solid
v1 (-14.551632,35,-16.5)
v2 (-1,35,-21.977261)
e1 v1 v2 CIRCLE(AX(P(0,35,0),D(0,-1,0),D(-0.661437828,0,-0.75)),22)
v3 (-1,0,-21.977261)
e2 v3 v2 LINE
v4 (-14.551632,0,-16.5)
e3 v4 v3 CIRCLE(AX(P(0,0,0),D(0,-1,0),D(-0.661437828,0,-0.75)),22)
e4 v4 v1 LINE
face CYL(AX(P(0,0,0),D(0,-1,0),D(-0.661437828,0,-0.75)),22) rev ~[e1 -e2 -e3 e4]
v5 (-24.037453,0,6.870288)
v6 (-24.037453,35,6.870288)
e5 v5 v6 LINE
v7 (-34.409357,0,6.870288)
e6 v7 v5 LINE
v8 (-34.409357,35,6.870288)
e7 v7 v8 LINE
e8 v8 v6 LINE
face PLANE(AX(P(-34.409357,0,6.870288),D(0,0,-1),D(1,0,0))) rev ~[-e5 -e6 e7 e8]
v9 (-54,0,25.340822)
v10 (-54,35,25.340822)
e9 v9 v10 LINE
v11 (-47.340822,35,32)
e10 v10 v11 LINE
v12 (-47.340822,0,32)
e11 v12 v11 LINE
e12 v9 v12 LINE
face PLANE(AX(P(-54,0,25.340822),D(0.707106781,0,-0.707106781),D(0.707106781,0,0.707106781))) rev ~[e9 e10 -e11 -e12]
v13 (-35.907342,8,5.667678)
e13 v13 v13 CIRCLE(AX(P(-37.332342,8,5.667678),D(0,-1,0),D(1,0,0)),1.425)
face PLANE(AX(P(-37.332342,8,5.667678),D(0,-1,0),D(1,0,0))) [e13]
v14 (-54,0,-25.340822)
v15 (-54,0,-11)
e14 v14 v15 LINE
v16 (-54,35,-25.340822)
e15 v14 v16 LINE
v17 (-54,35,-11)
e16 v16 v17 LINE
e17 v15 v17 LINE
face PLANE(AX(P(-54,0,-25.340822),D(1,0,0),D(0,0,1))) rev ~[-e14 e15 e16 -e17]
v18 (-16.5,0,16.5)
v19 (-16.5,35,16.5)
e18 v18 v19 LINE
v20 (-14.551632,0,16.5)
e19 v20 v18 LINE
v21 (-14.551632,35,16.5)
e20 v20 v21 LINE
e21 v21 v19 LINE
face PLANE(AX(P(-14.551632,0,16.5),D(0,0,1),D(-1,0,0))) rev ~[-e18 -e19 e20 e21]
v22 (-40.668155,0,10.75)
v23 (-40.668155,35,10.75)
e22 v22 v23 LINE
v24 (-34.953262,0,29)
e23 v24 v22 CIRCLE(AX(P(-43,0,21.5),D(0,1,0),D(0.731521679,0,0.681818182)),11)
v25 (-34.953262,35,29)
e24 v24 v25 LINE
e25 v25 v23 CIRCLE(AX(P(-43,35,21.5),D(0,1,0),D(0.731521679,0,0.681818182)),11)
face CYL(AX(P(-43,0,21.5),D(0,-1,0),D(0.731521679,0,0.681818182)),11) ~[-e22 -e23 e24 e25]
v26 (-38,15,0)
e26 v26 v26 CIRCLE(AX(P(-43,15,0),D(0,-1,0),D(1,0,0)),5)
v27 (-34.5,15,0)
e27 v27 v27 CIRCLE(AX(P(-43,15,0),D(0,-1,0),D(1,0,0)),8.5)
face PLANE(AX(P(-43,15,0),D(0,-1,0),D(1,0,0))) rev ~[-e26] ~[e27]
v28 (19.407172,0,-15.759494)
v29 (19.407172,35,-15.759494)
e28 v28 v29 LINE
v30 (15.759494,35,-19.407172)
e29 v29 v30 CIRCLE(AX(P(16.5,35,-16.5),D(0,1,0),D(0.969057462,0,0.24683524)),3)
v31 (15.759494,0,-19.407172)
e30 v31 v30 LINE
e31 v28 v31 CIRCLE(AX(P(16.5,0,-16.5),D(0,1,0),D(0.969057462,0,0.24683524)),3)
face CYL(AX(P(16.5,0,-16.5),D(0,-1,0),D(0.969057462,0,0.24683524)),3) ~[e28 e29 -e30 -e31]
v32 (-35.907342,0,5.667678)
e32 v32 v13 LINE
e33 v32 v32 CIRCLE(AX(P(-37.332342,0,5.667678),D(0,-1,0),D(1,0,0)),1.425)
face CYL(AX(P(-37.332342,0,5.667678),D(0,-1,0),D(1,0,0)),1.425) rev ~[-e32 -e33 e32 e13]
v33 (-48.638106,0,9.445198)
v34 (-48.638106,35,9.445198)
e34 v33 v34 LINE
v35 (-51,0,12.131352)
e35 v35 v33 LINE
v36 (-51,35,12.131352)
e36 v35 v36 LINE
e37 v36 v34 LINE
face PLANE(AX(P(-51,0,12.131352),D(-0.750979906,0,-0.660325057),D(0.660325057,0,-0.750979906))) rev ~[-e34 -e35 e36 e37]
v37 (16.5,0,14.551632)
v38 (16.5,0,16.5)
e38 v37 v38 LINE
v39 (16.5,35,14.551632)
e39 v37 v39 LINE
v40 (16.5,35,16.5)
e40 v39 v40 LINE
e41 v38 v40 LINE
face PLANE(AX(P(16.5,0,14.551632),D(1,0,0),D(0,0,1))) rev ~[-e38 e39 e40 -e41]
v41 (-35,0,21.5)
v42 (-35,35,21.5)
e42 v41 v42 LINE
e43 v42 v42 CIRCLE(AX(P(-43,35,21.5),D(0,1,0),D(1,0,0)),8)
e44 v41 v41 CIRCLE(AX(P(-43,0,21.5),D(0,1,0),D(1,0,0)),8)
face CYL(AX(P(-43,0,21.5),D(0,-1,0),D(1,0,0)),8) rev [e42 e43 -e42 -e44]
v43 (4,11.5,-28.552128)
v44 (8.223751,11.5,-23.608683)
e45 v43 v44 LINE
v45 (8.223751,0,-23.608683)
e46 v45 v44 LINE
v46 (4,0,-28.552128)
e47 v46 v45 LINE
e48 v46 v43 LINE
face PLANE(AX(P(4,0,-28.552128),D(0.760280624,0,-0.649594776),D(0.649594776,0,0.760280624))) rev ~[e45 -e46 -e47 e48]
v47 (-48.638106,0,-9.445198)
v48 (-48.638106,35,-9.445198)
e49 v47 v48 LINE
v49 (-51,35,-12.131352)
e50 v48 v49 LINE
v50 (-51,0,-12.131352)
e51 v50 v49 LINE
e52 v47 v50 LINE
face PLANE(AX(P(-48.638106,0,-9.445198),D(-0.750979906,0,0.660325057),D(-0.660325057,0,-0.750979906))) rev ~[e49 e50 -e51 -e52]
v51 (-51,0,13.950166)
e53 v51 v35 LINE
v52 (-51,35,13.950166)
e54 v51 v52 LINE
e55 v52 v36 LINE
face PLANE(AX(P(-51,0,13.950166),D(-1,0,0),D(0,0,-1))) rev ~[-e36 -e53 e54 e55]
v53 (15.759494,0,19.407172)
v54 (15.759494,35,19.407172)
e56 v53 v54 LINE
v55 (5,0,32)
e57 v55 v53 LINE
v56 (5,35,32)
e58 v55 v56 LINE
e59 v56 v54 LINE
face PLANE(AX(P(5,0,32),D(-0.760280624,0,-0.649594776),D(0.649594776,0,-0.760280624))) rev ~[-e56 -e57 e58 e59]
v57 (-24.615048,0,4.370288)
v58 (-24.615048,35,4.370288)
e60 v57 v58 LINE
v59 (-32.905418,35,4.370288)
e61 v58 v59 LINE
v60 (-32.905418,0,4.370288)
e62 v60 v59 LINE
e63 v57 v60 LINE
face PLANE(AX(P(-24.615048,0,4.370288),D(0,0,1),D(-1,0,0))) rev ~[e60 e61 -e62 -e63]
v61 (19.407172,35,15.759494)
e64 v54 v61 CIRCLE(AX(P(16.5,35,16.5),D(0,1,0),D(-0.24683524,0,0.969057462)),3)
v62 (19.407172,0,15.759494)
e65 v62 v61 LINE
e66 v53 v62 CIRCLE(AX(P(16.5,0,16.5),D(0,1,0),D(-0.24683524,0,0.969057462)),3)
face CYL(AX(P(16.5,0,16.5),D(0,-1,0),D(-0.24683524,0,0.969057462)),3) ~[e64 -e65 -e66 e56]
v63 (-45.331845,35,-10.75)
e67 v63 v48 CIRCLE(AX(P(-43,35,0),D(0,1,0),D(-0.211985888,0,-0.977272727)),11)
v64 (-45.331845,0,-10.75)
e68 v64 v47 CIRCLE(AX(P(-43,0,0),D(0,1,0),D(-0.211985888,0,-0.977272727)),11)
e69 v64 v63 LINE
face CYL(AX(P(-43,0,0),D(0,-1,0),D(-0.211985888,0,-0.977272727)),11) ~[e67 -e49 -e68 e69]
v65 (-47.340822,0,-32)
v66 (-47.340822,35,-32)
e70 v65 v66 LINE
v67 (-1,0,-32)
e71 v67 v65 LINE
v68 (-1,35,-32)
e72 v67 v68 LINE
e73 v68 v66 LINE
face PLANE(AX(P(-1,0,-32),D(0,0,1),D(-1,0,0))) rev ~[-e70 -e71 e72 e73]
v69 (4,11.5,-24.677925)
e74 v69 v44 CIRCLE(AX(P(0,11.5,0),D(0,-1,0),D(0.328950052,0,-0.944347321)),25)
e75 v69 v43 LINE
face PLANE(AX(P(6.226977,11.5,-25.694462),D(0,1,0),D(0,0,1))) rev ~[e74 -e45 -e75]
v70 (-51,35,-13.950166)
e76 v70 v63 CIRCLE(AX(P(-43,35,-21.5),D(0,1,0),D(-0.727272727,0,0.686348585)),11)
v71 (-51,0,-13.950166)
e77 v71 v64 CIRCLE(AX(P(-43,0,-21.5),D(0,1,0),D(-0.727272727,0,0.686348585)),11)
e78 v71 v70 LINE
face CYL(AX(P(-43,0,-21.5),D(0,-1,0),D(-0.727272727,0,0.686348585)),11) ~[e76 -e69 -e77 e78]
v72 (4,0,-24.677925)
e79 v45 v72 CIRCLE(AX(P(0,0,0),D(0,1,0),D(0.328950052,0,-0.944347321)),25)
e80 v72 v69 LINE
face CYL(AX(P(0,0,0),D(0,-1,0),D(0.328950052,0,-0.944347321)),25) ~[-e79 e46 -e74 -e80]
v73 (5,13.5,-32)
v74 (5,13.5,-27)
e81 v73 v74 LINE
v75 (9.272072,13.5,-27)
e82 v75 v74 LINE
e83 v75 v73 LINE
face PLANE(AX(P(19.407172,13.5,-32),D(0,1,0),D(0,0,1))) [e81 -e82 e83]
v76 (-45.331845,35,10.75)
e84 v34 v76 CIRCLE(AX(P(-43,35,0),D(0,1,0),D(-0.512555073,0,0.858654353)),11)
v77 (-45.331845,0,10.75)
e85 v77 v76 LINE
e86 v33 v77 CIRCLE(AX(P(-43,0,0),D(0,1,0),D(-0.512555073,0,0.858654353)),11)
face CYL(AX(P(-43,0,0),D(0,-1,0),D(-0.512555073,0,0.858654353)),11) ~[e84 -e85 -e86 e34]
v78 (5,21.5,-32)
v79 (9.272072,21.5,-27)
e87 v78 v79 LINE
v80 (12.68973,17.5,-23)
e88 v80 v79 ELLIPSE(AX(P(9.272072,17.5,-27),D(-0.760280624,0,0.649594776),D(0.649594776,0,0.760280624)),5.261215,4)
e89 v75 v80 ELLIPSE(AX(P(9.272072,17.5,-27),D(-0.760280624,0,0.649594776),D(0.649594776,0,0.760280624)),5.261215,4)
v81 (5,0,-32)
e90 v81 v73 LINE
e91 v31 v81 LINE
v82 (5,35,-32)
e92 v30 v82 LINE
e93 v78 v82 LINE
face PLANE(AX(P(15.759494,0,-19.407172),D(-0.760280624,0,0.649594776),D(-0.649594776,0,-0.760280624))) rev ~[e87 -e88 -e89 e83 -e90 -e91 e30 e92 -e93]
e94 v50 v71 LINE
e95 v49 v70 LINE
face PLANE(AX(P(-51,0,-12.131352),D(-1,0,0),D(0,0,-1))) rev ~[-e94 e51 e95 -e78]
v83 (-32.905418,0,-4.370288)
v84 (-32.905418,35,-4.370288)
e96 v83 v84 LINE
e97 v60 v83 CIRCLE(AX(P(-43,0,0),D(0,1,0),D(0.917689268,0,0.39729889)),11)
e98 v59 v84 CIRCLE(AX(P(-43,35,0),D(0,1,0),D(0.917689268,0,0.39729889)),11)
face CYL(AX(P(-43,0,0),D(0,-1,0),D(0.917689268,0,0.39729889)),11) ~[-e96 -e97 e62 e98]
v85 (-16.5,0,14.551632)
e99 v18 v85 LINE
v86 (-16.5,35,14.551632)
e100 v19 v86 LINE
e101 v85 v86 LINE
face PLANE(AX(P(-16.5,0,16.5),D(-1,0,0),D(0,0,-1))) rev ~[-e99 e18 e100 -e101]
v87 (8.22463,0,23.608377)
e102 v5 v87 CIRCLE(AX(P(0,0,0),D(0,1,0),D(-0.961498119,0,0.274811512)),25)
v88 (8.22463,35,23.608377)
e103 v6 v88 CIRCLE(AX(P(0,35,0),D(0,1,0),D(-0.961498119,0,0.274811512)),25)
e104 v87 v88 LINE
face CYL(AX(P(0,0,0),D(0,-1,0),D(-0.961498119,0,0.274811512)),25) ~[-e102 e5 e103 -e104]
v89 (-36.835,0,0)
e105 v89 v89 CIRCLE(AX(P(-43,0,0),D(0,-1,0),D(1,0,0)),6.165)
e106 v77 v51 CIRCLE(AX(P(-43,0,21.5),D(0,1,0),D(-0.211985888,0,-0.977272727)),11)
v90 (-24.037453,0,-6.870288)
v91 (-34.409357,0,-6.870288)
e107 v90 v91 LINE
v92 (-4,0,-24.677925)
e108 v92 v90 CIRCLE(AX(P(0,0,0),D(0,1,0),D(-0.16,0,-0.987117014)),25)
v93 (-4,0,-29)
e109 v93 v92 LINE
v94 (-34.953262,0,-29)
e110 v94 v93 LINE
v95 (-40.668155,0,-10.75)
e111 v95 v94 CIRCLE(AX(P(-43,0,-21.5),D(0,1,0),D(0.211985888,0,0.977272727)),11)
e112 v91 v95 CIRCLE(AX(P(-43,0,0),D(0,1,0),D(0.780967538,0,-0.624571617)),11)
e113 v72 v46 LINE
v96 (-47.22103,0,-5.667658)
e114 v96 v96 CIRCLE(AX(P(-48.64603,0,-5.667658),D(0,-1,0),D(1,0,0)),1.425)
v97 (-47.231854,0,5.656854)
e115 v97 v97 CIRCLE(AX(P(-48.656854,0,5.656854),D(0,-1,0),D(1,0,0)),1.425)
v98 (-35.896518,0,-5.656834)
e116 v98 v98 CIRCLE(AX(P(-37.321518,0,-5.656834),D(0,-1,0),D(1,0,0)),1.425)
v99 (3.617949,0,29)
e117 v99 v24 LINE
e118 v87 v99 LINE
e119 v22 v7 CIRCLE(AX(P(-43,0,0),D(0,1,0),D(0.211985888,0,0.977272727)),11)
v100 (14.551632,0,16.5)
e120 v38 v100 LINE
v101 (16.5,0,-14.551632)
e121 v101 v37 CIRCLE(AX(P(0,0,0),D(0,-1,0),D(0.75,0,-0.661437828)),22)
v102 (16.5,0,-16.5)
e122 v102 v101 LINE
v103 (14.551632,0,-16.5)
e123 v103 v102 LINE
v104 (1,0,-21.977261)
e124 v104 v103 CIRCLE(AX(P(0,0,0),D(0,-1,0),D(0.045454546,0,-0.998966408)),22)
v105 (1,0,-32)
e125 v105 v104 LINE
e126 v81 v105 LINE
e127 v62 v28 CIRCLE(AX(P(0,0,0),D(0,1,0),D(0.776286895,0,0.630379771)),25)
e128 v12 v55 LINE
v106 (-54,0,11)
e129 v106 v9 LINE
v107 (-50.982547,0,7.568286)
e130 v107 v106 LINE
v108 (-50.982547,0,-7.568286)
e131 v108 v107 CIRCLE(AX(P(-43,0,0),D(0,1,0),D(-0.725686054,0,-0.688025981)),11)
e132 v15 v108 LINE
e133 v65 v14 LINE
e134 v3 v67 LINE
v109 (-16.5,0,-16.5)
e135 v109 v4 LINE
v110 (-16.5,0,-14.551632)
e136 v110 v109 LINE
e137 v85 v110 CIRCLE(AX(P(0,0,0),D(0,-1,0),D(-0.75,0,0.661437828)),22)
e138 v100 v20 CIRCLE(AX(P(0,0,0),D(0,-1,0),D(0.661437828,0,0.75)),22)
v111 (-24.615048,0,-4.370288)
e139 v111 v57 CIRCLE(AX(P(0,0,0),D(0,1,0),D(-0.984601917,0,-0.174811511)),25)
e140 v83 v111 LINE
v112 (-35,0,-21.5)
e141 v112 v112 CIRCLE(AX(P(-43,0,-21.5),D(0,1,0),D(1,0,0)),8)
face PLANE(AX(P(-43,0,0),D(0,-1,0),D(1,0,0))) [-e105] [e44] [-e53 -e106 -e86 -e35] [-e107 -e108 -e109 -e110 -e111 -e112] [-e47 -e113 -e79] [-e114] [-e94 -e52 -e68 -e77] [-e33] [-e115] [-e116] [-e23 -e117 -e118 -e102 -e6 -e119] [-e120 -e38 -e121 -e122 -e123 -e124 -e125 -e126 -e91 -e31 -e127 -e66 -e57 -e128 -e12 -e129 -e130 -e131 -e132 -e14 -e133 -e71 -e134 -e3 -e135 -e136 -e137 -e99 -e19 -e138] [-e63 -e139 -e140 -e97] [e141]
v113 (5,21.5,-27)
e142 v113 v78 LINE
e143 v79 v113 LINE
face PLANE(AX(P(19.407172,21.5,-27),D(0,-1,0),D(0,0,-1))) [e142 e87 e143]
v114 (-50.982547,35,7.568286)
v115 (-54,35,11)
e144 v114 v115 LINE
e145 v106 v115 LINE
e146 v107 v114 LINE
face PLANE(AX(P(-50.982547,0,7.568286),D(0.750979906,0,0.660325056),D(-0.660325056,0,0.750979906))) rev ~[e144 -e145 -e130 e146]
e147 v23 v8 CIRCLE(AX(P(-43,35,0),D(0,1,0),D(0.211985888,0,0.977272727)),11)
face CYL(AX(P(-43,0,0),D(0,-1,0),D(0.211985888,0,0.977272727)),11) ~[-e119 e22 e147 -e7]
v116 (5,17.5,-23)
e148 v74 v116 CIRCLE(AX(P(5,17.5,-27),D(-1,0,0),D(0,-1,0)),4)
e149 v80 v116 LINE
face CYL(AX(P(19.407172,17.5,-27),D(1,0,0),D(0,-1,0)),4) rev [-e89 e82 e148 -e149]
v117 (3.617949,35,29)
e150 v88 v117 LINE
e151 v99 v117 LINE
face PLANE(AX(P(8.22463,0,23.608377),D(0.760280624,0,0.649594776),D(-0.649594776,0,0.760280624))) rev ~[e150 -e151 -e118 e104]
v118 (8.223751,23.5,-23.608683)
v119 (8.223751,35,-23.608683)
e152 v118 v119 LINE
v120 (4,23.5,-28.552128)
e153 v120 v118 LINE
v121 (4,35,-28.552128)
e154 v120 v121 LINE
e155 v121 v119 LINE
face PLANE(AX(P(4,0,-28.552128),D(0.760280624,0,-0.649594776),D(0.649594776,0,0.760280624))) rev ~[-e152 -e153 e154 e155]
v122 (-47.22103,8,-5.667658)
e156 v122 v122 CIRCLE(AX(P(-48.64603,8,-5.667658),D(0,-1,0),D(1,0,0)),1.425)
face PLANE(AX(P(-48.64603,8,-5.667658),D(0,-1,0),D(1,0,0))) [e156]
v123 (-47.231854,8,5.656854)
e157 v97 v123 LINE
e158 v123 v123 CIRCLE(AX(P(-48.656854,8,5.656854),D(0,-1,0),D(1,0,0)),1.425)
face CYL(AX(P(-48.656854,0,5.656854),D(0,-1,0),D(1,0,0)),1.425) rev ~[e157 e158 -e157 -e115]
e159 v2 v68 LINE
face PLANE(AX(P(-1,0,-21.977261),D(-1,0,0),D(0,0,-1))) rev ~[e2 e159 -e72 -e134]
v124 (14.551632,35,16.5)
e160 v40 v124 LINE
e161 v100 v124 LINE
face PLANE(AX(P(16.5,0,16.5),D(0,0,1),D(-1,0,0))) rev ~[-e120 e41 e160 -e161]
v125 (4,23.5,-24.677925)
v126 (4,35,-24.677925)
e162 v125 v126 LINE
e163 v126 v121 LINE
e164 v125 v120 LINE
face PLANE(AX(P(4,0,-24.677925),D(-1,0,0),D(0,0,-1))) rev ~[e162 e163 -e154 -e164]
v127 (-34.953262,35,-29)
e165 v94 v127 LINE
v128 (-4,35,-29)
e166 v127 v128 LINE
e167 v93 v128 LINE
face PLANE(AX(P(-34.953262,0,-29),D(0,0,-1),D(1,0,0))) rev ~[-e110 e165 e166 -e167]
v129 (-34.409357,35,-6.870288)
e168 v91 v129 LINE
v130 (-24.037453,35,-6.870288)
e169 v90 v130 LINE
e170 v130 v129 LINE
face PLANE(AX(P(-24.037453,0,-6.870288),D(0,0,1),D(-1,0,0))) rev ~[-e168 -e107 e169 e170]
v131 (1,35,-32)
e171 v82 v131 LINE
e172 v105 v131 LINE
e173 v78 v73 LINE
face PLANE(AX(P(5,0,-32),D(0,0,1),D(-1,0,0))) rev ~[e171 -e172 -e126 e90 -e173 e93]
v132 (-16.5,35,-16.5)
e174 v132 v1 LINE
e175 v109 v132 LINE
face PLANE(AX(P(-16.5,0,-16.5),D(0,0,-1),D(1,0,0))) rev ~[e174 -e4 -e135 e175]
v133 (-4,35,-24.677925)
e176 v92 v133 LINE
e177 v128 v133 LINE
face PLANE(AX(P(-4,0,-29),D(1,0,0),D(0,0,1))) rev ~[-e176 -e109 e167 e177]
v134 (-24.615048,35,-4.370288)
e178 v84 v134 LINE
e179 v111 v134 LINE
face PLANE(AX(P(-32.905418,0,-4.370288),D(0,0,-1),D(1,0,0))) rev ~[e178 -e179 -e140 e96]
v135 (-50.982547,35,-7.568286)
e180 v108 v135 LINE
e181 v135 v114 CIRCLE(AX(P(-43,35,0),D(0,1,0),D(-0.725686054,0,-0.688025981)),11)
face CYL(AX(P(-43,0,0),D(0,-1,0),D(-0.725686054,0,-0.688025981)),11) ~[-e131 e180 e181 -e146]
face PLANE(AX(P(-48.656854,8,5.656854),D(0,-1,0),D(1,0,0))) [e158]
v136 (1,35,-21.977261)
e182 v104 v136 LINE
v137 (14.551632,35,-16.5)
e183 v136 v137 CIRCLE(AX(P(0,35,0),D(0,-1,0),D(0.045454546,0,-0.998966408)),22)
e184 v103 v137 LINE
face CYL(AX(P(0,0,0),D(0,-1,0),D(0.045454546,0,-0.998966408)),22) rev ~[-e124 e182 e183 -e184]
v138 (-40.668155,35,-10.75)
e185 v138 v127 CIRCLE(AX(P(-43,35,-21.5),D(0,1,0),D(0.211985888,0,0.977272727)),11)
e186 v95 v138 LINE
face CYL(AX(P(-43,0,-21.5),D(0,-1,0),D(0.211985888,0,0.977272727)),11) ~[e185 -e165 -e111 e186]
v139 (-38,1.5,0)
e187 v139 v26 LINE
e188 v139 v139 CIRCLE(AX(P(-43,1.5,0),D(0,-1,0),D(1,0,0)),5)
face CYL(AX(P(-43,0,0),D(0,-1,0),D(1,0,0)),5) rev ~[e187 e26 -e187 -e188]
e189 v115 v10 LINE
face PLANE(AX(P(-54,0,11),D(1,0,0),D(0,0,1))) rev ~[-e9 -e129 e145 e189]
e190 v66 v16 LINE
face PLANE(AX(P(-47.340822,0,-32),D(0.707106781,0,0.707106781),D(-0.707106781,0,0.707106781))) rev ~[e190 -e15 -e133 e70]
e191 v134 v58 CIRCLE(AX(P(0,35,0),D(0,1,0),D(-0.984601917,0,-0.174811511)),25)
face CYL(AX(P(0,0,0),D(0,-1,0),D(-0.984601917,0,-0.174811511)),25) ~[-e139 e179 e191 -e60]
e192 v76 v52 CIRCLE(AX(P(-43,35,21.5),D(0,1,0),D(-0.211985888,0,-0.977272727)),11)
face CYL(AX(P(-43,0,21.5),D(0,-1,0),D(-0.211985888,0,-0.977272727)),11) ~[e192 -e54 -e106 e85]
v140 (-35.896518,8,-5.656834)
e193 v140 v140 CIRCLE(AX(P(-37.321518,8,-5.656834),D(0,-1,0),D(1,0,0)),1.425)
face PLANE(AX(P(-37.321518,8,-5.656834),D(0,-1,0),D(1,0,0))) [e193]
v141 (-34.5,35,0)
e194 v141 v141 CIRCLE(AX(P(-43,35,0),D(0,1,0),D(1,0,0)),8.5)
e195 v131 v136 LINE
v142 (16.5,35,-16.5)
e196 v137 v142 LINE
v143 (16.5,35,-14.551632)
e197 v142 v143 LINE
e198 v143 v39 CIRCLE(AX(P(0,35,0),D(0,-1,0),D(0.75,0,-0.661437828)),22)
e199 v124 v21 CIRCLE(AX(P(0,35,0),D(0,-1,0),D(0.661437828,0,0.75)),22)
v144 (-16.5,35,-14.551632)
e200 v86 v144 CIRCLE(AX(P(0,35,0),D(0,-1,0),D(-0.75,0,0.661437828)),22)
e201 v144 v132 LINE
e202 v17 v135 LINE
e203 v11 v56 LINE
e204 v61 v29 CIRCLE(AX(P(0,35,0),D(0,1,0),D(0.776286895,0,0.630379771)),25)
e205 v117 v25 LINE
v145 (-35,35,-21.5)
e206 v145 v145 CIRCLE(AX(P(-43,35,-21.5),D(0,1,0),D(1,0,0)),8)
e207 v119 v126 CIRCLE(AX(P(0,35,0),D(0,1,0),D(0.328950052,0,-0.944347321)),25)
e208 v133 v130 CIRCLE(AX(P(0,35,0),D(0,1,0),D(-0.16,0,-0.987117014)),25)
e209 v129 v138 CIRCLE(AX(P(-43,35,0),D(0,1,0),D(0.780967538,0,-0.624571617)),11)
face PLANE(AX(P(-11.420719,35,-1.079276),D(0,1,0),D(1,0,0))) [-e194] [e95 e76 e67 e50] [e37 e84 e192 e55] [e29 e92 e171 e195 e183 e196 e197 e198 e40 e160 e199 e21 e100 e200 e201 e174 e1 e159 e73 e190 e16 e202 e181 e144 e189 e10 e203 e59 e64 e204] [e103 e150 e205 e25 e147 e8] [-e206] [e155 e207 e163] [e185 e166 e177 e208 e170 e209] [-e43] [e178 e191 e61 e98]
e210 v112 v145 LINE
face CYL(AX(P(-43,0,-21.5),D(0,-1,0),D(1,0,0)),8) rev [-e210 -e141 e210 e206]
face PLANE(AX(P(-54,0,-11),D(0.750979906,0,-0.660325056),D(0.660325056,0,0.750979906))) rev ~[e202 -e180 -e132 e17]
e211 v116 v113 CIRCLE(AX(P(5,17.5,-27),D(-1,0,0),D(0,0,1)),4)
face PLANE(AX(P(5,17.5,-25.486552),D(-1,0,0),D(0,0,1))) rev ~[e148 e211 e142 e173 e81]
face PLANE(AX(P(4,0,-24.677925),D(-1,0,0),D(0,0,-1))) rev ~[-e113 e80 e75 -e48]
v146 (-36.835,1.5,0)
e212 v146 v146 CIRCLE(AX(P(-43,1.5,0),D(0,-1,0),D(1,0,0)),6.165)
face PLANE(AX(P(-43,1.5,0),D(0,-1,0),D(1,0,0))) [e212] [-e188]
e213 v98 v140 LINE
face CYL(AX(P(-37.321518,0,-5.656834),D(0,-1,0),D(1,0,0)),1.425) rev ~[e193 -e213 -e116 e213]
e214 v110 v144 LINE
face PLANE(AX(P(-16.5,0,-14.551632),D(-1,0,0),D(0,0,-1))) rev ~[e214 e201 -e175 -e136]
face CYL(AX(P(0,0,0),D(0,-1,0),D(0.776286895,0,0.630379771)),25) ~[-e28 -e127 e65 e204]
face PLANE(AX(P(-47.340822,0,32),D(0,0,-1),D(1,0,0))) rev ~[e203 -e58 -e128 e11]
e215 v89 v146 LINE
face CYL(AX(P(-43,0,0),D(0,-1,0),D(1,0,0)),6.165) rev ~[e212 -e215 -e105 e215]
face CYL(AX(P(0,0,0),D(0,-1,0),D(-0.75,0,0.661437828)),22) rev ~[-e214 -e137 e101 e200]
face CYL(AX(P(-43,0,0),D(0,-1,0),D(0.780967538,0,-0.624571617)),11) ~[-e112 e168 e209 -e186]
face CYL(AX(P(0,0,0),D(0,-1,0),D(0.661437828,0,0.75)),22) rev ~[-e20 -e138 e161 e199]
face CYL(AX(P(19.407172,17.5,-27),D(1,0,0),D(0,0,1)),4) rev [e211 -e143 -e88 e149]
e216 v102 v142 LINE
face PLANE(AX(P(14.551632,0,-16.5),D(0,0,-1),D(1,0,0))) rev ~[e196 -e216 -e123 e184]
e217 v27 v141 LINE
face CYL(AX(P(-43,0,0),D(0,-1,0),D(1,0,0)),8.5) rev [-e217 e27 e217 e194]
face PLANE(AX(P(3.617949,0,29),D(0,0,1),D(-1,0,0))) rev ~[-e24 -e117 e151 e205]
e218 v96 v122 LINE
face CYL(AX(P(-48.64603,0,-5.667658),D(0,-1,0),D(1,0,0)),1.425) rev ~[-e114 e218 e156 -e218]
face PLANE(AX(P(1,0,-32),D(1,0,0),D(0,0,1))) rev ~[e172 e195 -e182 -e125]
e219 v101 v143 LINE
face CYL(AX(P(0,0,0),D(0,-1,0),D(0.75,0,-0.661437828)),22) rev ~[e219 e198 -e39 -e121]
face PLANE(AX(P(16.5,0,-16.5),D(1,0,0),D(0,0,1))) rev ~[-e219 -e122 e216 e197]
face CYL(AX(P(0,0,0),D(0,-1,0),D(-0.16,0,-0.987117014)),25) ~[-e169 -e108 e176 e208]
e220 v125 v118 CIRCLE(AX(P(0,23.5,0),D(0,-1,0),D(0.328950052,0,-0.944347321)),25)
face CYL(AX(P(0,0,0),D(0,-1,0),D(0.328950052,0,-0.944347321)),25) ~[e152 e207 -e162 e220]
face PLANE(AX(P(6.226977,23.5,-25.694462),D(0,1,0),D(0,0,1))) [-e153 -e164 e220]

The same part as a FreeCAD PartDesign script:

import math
import FreeCAD as App
import Part
import Sketcher
Q = App.Units.Quantity


def add_polygon(sketch, points):
    """Adds a closed chain of lines whose ends are joined by coincident constraints."""
    first, n = sketch.GeometryCount, len(points)
    for a, b in zip(points, points[1:] + points[:1]):
        sketch.addGeometry(Part.LineSegment(App.Vector(*a, 0), App.Vector(*b, 0)), False)
    for i in range(n):
        sketch.addConstraint(Sketcher.Constraint("Coincident", first + i, 2, first + (i + 1) % n, 1))

doc = App.newDocument("Part")
body = doc.addObject("PartDesign::Body", "Body")

# Sketch on XZ plane
sketch1 = body.newObject("Sketcher::SketchObject", "Sketch")
sketch1.AttachmentSupport = (doc.getObject("XZ_Plane"), [""])
sketch1.MapMode = "FlatFace"
sketch1.addGeometry(Part.ArcOfCircle(Part.Circle(App.Vector(-43, 0, 0), App.Vector(0, 0, 1), 11), math.radians(136.525949), math.radians(223.474051)), False)
sketch1.addGeometry(Part.LineSegment(App.Vector(-50.982547, 7.568286, 0), App.Vector(-54, 11, 0)), False)
sketch1.addGeometry(Part.LineSegment(App.Vector(-54, 11, 0), App.Vector(-54, 25.340822, 0)), False)
sketch1.addGeometry(Part.LineSegment(App.Vector(-54, 25.340822, 0), App.Vector(-47.340822, 32, 0)), False)
sketch1.addGeometry(Part.LineSegment(App.Vector(-47.340822, 32, 0), App.Vector(5, 32, 0)), False)
sketch1.addGeometry(Part.LineSegment(App.Vector(5, 32, 0), App.Vector(15.759494, 19.407172, 0)), False)
sketch1.addGeometry(Part.ArcOfCircle(Part.Circle(App.Vector(16.5, 16.5, 0), App.Vector(0, 0, 1), 3), math.radians(-14.290317), math.radians(104.290317)), False)
sketch1.addGeometry(Part.ArcOfCircle(Part.Circle(App.Vector(0, 0, 0), App.Vector(0, 0, 1), 25), math.radians(-39.078147), math.radians(39.078147)), False)
sketch1.addGeometry(Part.ArcOfCircle(Part.Circle(App.Vector(16.5, -16.5, 0), App.Vector(0, 0, 1), 3), math.radians(-104.290317), math.radians(14.290317)), False)
sketch1.addGeometry(Part.LineSegment(App.Vector(15.759494, -19.407172, 0), App.Vector(5, -32, 0)), False)
sketch1.addGeometry(Part.LineSegment(App.Vector(5, -32, 0), App.Vector(1, -32, 0)), False)
sketch1.addGeometry(Part.LineSegment(App.Vector(1, -32, 0), App.Vector(1, -21.977261, 0)), False)
sketch1.addGeometry(Part.ArcOfCircle(Part.Circle(App.Vector(0, 0, 0), App.Vector(0, 0, 1), 22), math.radians(-87.394749), math.radians(-48.590378)), False)
sketch1.addGeometry(Part.LineSegment(App.Vector(14.551632, -16.5, 0), App.Vector(16.5, -16.5, 0)), False)
sketch1.addGeometry(Part.LineSegment(App.Vector(16.5, -16.5, 0), App.Vector(16.5, -14.551632, 0)), False)
sketch1.addGeometry(Part.ArcOfCircle(Part.Circle(App.Vector(0, 0, 0), App.Vector(0, 0, 1), 22), math.radians(-41.409622), math.radians(41.409622)), False)
sketch1.addGeometry(Part.LineSegment(App.Vector(16.5, 14.551632, 0), App.Vector(16.5, 16.5, 0)), False)
sketch1.addGeometry(Part.LineSegment(App.Vector(16.5, 16.5, 0), App.Vector(14.551632, 16.5, 0)), False)
sketch1.addGeometry(Part.ArcOfCircle(Part.Circle(App.Vector(0, 0, 0), App.Vector(0, 0, 1), 22), math.radians(48.590378), math.radians(131.409622)), False)
sketch1.addGeometry(Part.LineSegment(App.Vector(-14.551632, 16.5, 0), App.Vector(-16.5, 16.5, 0)), False)
sketch1.addGeometry(Part.LineSegment(App.Vector(-16.5, 16.5, 0), App.Vector(-16.5, 14.551632, 0)), False)
sketch1.addGeometry(Part.ArcOfCircle(Part.Circle(App.Vector(0, 0, 0), App.Vector(0, 0, 1), 22), math.radians(138.590378), math.radians(221.409622)), False)
sketch1.addGeometry(Part.LineSegment(App.Vector(-16.5, -14.551632, 0), App.Vector(-16.5, -16.5, 0)), False)
sketch1.addGeometry(Part.LineSegment(App.Vector(-16.5, -16.5, 0), App.Vector(-14.551632, -16.5, 0)), False)
sketch1.addGeometry(Part.ArcOfCircle(Part.Circle(App.Vector(0, 0, 0), App.Vector(0, 0, 1), 22), math.radians(-131.409622), math.radians(-92.605251)), False)
sketch1.addGeometry(Part.LineSegment(App.Vector(-1, -21.977261, 0), App.Vector(-1, -32, 0)), False)
sketch1.addGeometry(Part.LineSegment(App.Vector(-1, -32, 0), App.Vector(-47.340822, -32, 0)), False)
sketch1.addGeometry(Part.LineSegment(App.Vector(-47.340822, -32, 0), App.Vector(-54, -25.340822, 0)), False)
sketch1.addGeometry(Part.LineSegment(App.Vector(-54, -25.340822, 0), App.Vector(-54, -11, 0)), False)
sketch1.addGeometry(Part.LineSegment(App.Vector(-54, -11, 0), App.Vector(-50.982547, -7.568286, 0)), False)
sketch1.addGeometry(Part.Circle(App.Vector(-43, 21.5, 0), App.Vector(0, 0, 1), 8), False)
sketch1.addGeometry(Part.LineSegment(App.Vector(-51, 12.131352, 0), App.Vector(-48.638106, 9.445198, 0)), False)
sketch1.addGeometry(Part.ArcOfCircle(Part.Circle(App.Vector(-43, 0, 0), App.Vector(0, 0, 1), 11), math.radians(102.238756), math.radians(120.834172)), False)
sketch1.addGeometry(Part.ArcOfCircle(Part.Circle(App.Vector(-43, 21.5, 0), App.Vector(0, 0, 1), 11), math.radians(-136.658242), math.radians(-102.238756)), False)
sketch1.addGeometry(Part.LineSegment(App.Vector(-51, 13.950166, 0), App.Vector(-51, 12.131352, 0)), False)
sketch1.addGeometry(Part.LineSegment(App.Vector(3.617949, 29, 0), App.Vector(-34.953262, 29, 0)), False)
sketch1.addGeometry(Part.ArcOfCircle(Part.Circle(App.Vector(-43, 21.5, 0), App.Vector(0, 0, 1), 11), math.radians(-77.761244), math.radians(42.985886)), False)
sketch1.addGeometry(Part.ArcOfCircle(Part.Circle(App.Vector(-43, 0, 0), App.Vector(0, 0, 1), 11), math.radians(38.650752), math.radians(77.761244)), False)
sketch1.addGeometry(Part.LineSegment(App.Vector(-34.409357, 6.870288, 0), App.Vector(-24.037453, 6.870288, 0)), False)
sketch1.addGeometry(Part.ArcOfCircle(Part.Circle(App.Vector(0, 0, 0), App.Vector(0, 0, 1), 25), math.radians(70.792807), math.radians(164.049218)), False)
sketch1.addGeometry(Part.LineSegment(App.Vector(8.22463, 23.608377, 0), App.Vector(3.617949, 29, 0)), False)
sketch1.addGeometry(Part.Circle(App.Vector(-43, 0, 0), App.Vector(0, 0, 1), 8.5), False)
sketch1.addGeometry(Part.ArcOfCircle(Part.Circle(App.Vector(-43, -21.5, 0), App.Vector(0, 0, 1), 11), math.radians(102.238756), math.radians(136.658242)), False)
sketch1.addGeometry(Part.ArcOfCircle(Part.Circle(App.Vector(-43, 0, 0), App.Vector(0, 0, 1), 11), math.radians(-120.834172), math.radians(-102.238756)), False)
sketch1.addGeometry(Part.LineSegment(App.Vector(-48.638106, -9.445198, 0), App.Vector(-51, -12.131352, 0)), False)
sketch1.addGeometry(Part.LineSegment(App.Vector(-51, -12.131352, 0), App.Vector(-51, -13.950166, 0)), False)
sketch1.addGeometry(Part.LineSegment(App.Vector(-24.615048, 4.370288, 0), App.Vector(-32.905418, 4.370288, 0)), False)
sketch1.addGeometry(Part.ArcOfCircle(Part.Circle(App.Vector(-43, 0, 0), App.Vector(0, 0, 1), 11), math.radians(-23.409427), math.radians(23.409427)), False)
sketch1.addGeometry(Part.LineSegment(App.Vector(-32.905418, -4.370288, 0), App.Vector(-24.615048, -4.370288, 0)), False)
sketch1.addGeometry(Part.ArcOfCircle(Part.Circle(App.Vector(0, 0, 0), App.Vector(0, 0, 1), 25), math.radians(169.932311), math.radians(190.067689)), False)
sketch1.addGeometry(Part.Circle(App.Vector(-43, -21.5, 0), App.Vector(0, 0, 1), 8), False)
sketch1.addGeometry(Part.LineSegment(App.Vector(-24.037453, -6.870288, 0), App.Vector(-34.409357, -6.870288, 0)), False)
sketch1.addGeometry(Part.ArcOfCircle(Part.Circle(App.Vector(-43, 0, 0), App.Vector(0, 0, 1), 11), math.radians(-77.761244), math.radians(-38.650752)), False)
sketch1.addGeometry(Part.ArcOfCircle(Part.Circle(App.Vector(-43, -21.5, 0), App.Vector(0, 0, 1), 11), math.radians(-42.985886), math.radians(77.761244)), False)
sketch1.addGeometry(Part.LineSegment(App.Vector(-34.953262, -29, 0), App.Vector(-4, -29, 0)), False)
sketch1.addGeometry(Part.LineSegment(App.Vector(-4, -29, 0), App.Vector(-4, -24.677925, 0)), False)
sketch1.addGeometry(Part.ArcOfCircle(Part.Circle(App.Vector(0, 0, 0), App.Vector(0, 0, 1), 25), math.radians(-164.049218), math.radians(-99.206896)), False)
sketch1.addGeometry(Part.LineSegment(App.Vector(4, -28.552128, 0), App.Vector(8.223751, -23.608683, 0)), False)
sketch1.addGeometry(Part.ArcOfCircle(Part.Circle(App.Vector(0, 0, 0), App.Vector(0, 0, 1), 25), math.radians(-80.793104), math.radians(-70.79494)), False)
sketch1.addGeometry(Part.LineSegment(App.Vector(4, -24.677925, 0), App.Vector(4, -28.552128, 0)), False)
sketch1.addConstraint(Sketcher.Constraint("Coincident", 0, 1, 1, 1))
sketch1.addConstraint(Sketcher.Constraint("Coincident", 1, 2, 2, 1))
sketch1.addConstraint(Sketcher.Constraint("Coincident", 2, 2, 3, 1))
sketch1.addConstraint(Sketcher.Constraint("Coincident", 3, 2, 4, 1))
sketch1.addConstraint(Sketcher.Constraint("Coincident", 4, 2, 5, 1))
sketch1.addConstraint(Sketcher.Constraint("Coincident", 5, 2, 6, 2))
sketch1.addConstraint(Sketcher.Constraint("Coincident", 6, 1, 7, 2))
sketch1.addConstraint(Sketcher.Constraint("Coincident", 7, 1, 8, 2))
sketch1.addConstraint(Sketcher.Constraint("Coincident", 8, 1, 9, 1))
sketch1.addConstraint(Sketcher.Constraint("Coincident", 9, 2, 10, 1))
sketch1.addConstraint(Sketcher.Constraint("Coincident", 10, 2, 11, 1))
sketch1.addConstraint(Sketcher.Constraint("Coincident", 11, 2, 12, 1))
sketch1.addConstraint(Sketcher.Constraint("Coincident", 12, 2, 13, 1))
sketch1.addConstraint(Sketcher.Constraint("Coincident", 13, 2, 14, 1))
sketch1.addConstraint(Sketcher.Constraint("Coincident", 14, 2, 15, 1))
sketch1.addConstraint(Sketcher.Constraint("Coincident", 15, 2, 16, 1))
sketch1.addConstraint(Sketcher.Constraint("Coincident", 16, 2, 17, 1))
sketch1.addConstraint(Sketcher.Constraint("Coincident", 17, 2, 18, 1))
sketch1.addConstraint(Sketcher.Constraint("Coincident", 18, 2, 19, 1))
sketch1.addConstraint(Sketcher.Constraint("Coincident", 19, 2, 20, 1))
sketch1.addConstraint(Sketcher.Constraint("Coincident", 20, 2, 21, 1))
sketch1.addConstraint(Sketcher.Constraint("Coincident", 21, 2, 22, 1))
sketch1.addConstraint(Sketcher.Constraint("Coincident", 22, 2, 23, 1))
sketch1.addConstraint(Sketcher.Constraint("Coincident", 23, 2, 24, 1))
sketch1.addConstraint(Sketcher.Constraint("Coincident", 24, 2, 25, 1))
sketch1.addConstraint(Sketcher.Constraint("Coincident", 25, 2, 26, 1))
sketch1.addConstraint(Sketcher.Constraint("Coincident", 26, 2, 27, 1))
sketch1.addConstraint(Sketcher.Constraint("Coincident", 27, 2, 28, 1))
sketch1.addConstraint(Sketcher.Constraint("Coincident", 28, 2, 29, 1))
sketch1.addConstraint(Sketcher.Constraint("Coincident", 29, 2, 0, 2))
sketch1.addConstraint(Sketcher.Constraint("Coincident", 31, 2, 32, 2))
sketch1.addConstraint(Sketcher.Constraint("Coincident", 32, 1, 33, 2))
sketch1.addConstraint(Sketcher.Constraint("Coincident", 33, 1, 34, 1))
sketch1.addConstraint(Sketcher.Constraint("Coincident", 34, 2, 31, 1))
sketch1.addConstraint(Sketcher.Constraint("Coincident", 35, 2, 36, 2))
sketch1.addConstraint(Sketcher.Constraint("Coincident", 36, 1, 37, 2))
sketch1.addConstraint(Sketcher.Constraint("Coincident", 37, 1, 38, 1))
sketch1.addConstraint(Sketcher.Constraint("Coincident", 38, 2, 39, 2))
sketch1.addConstraint(Sketcher.Constraint("Coincident", 39, 1, 40, 1))
sketch1.addConstraint(Sketcher.Constraint("Coincident", 40, 2, 35, 1))
sketch1.addConstraint(Sketcher.Constraint("Coincident", 42, 1, 43, 2))
sketch1.addConstraint(Sketcher.Constraint("Coincident", 43, 1, 44, 1))
sketch1.addConstraint(Sketcher.Constraint("Coincident", 44, 2, 45, 1))
sketch1.addConstraint(Sketcher.Constraint("Coincident", 45, 2, 42, 2))
sketch1.addConstraint(Sketcher.Constraint("Coincident", 46, 2, 47, 2))
sketch1.addConstraint(Sketcher.Constraint("Coincident", 47, 1, 48, 1))
sketch1.addConstraint(Sketcher.Constraint("Coincident", 48, 2, 49, 2))
sketch1.addConstraint(Sketcher.Constraint("Coincident", 49, 1, 46, 1))
sketch1.addConstraint(Sketcher.Constraint("Coincident", 51, 2, 52, 2))
sketch1.addConstraint(Sketcher.Constraint("Coincident", 52, 1, 53, 2))
sketch1.addConstraint(Sketcher.Constraint("Coincident", 53, 1, 54, 1))
sketch1.addConstraint(Sketcher.Constraint("Coincident", 54, 2, 55, 1))
sketch1.addConstraint(Sketcher.Constraint("Coincident", 55, 2, 56, 2))
sketch1.addConstraint(Sketcher.Constraint("Coincident", 56, 1, 51, 1))
sketch1.addConstraint(Sketcher.Constraint("Coincident", 57, 2, 58, 2))
sketch1.addConstraint(Sketcher.Constraint("Coincident", 58, 1, 59, 1))
sketch1.addConstraint(Sketcher.Constraint("Coincident", 59, 2, 57, 1))
sketch1.addConstraint(Sketcher.Constraint("Vertical", 2))
sketch1.addConstraint(Sketcher.Constraint("Horizontal", 4))
sketch1.addConstraint(Sketcher.Constraint("Horizontal", 10))
sketch1.addConstraint(Sketcher.Constraint("Vertical", 11))
sketch1.addConstraint(Sketcher.Constraint("Horizontal", 13))
sketch1.addConstraint(Sketcher.Constraint("Vertical", 14))
sketch1.addConstraint(Sketcher.Constraint("Vertical", 16))
sketch1.addConstraint(Sketcher.Constraint("Horizontal", 17))
sketch1.addConstraint(Sketcher.Constraint("Horizontal", 19))
sketch1.addConstraint(Sketcher.Constraint("Vertical", 20))
sketch1.addConstraint(Sketcher.Constraint("Vertical", 22))
sketch1.addConstraint(Sketcher.Constraint("Horizontal", 23))
sketch1.addConstraint(Sketcher.Constraint("Vertical", 25))
sketch1.addConstraint(Sketcher.Constraint("Horizontal", 26))
sketch1.addConstraint(Sketcher.Constraint("Vertical", 28))
sketch1.addConstraint(Sketcher.Constraint("Vertical", 34))
sketch1.addConstraint(Sketcher.Constraint("Horizontal", 35))
sketch1.addConstraint(Sketcher.Constraint("Horizontal", 38))
sketch1.addConstraint(Sketcher.Constraint("Vertical", 45))
sketch1.addConstraint(Sketcher.Constraint("Horizontal", 46))
sketch1.addConstraint(Sketcher.Constraint("Horizontal", 48))
sketch1.addConstraint(Sketcher.Constraint("Horizontal", 51))
sketch1.addConstraint(Sketcher.Constraint("Horizontal", 54))
sketch1.addConstraint(Sketcher.Constraint("Vertical", 55))
sketch1.addConstraint(Sketcher.Constraint("Vertical", 59))
sketch1.addConstraint(Sketcher.Constraint("Coincident", 7, 3, -1, 1))
sketch1.addConstraint(Sketcher.Constraint("Coincident", 12, 3, -1, 1))
sketch1.addConstraint(Sketcher.Constraint("Coincident", 15, 3, -1, 1))
sketch1.addConstraint(Sketcher.Constraint("Coincident", 18, 3, -1, 1))
sketch1.addConstraint(Sketcher.Constraint("Coincident", 21, 3, -1, 1))
sketch1.addConstraint(Sketcher.Constraint("Coincident", 24, 3, -1, 1))
sketch1.addConstraint(Sketcher.Constraint("Coincident", 39, 3, -1, 1))
sketch1.addConstraint(Sketcher.Constraint("Coincident", 49, 3, -1, 1))
sketch1.addConstraint(Sketcher.Constraint("Coincident", 56, 3, -1, 1))
sketch1.addConstraint(Sketcher.Constraint("Coincident", 58, 3, -1, 1))
sketch1.addConstraint(Sketcher.Constraint("Coincident", 32, 3, 0, 3))
sketch1.addConstraint(Sketcher.Constraint("Coincident", 33, 3, 30, 3))
sketch1.addConstraint(Sketcher.Constraint("Coincident", 36, 3, 30, 3))
sketch1.addConstraint(Sketcher.Constraint("Coincident", 37, 3, 0, 3))
sketch1.addConstraint(Sketcher.Constraint("Coincident", 41, 3, 0, 3))
sketch1.addConstraint(Sketcher.Constraint("Coincident", 43, 3, 0, 3))
sketch1.addConstraint(Sketcher.Constraint("Coincident", 47, 3, 0, 3))
sketch1.addConstraint(Sketcher.Constraint("Coincident", 50, 3, 42, 3))
sketch1.addConstraint(Sketcher.Constraint("Coincident", 52, 3, 0, 3))
sketch1.addConstraint(Sketcher.Constraint("Coincident", 53, 3, 42, 3))
sketch1.addConstraint(Sketcher.Constraint("Coincident", 13, 2, 8, 3))
sketch1.addConstraint(Sketcher.Constraint("Coincident", 16, 2, 6, 3))
sketch1.addConstraint(Sketcher.Constraint("Equal", 6, 8))
sketch1.addConstraint(Sketcher.Constraint("Equal", 12, 15))
sketch1.addConstraint(Sketcher.Constraint("Equal", 15, 18))
sketch1.addConstraint(Sketcher.Constraint("Equal", 18, 21))
sketch1.addConstraint(Sketcher.Constraint("Equal", 21, 24))
sketch1.addConstraint(Sketcher.Constraint("Equal", 0, 32))
sketch1.addConstraint(Sketcher.Constraint("Equal", 32, 33))
sketch1.addConstraint(Sketcher.Constraint("Equal", 33, 36))
sketch1.addConstraint(Sketcher.Constraint("Equal", 36, 37))
sketch1.addConstraint(Sketcher.Constraint("Equal", 7, 39))
sketch1.addConstraint(Sketcher.Constraint("Equal", 37, 42))
sketch1.addConstraint(Sketcher.Constraint("Equal", 42, 43))
sketch1.addConstraint(Sketcher.Constraint("Equal", 43, 47))
sketch1.addConstraint(Sketcher.Constraint("Equal", 39, 49))
sketch1.addConstraint(Sketcher.Constraint("Equal", 30, 50))
sketch1.addConstraint(Sketcher.Constraint("Equal", 47, 52))
sketch1.addConstraint(Sketcher.Constraint("Equal", 52, 53))
sketch1.addConstraint(Sketcher.Constraint("Equal", 49, 56))
sketch1.addConstraint(Sketcher.Constraint("Equal", 56, 58))
sketch1.addConstraint(Sketcher.Constraint("Symmetric", 13, 2, 19, 2, -1, 1))
sketch1.addConstraint(Sketcher.Constraint("Symmetric", 16, 2, 22, 2, -1, 1))
sketch1.addConstraint(Sketcher.Constraint("Symmetric", 16, 2, 19, 2, -2))
sketch1.addConstraint(Sketcher.Constraint("Symmetric", 10, 2, 25, 2, -2))
sketch1.addConstraint(Sketcher.Constraint("Symmetric", 30, 3, 42, 3, -1))
sketch1.addConstraint(Sketcher.Constraint("Symmetric", 4, 2, 9, 2, -1))
sketch1.addConstraint(Sketcher.Constraint("Symmetric", 2, 2, 27, 2, -1))
sketch1.addConstraint(Sketcher.Constraint("Symmetric", 0, 1, 29, 2, -1))
sketch1.addConstraint(Sketcher.Constraint("Symmetric", 34, 2, 44, 2, -1))
sketch1.addConstraint(Sketcher.Constraint("Perpendicular", 3, 27))
sketch1.addConstraint(Sketcher.Constraint("Parallel", 1, 31))
sketch1.addConstraint(Sketcher.Constraint("Parallel", 5, 40))
sketch1.addConstraint(Sketcher.Constraint("Parallel", 29, 44))
sketch1.addConstraint(Sketcher.Constraint("Parallel", 9, 57))
sketch1.addConstraint(Sketcher.Constraint("Horizontal", 32, 1, 36, 1))
sketch1.addConstraint(Sketcher.Constraint("Horizontal", 55, 2, 58, 1))
sketch1.addConstraint(Sketcher.Constraint("Vertical", 5, 2, 8, 1))
sketch1.addConstraint(Sketcher.Constraint("Vertical", 3, 2, 26, 2))
sketch1.addConstraint(Sketcher.Constraint("Vertical", 31, 2, 43, 1))
sketch1.addConstraint(Sketcher.Constraint("Vertical", 46, 2, 47, 1))
sketch1.addConstraint(Sketcher.Constraint("Vertical", 37, 1, 51, 2))
sketch1.addConstraint(Sketcher.Constraint("Vertical", 35, 2, 53, 1))
sketch1.addConstraint(Sketcher.Constraint("Equal", 23, 14))
sketch1.addConstraint(Sketcher.Constraint("Diameter", 30, Q("16 mm")))
sketch1.addConstraint(Sketcher.Constraint("Diameter", 41, Q("17 mm")))
sketch1.addConstraint(Sketcher.Constraint("Radius", 0, Q("11 mm")))
sketch1.addConstraint(Sketcher.Constraint("Radius", 6, Q("3 mm")))
sketch1.addConstraint(Sketcher.Constraint("Radius", 7, Q("25 mm")))
sketch1.addConstraint(Sketcher.Constraint("Radius", 12, Q("22 mm")))
sketch1.addConstraint(Sketcher.Constraint("DistanceX", 10, 2, 10, 1, Q("4 mm")))
sketch1.addConstraint(Sketcher.Constraint("DistanceX", 0, 3, -1, 1, Q("43 mm")))
sketch1.addConstraint(Sketcher.Constraint("DistanceX", 1, 2, -1, 1, Q("54 mm")))
sketch1.addConstraint(Sketcher.Constraint("DistanceY", -1, 1, 1, 2, Q("11 mm")))
sketch1.addConstraint(Sketcher.Constraint("DistanceY", -1, 1, 3, 2, Q("32 mm")))
sketch1.addConstraint(Sketcher.Constraint("DistanceX", -1, 1, 4, 2, Q("5 mm")))
sketch1.addConstraint(Sketcher.Constraint("DistanceX", 33, 1, -1, 1, Q("51 mm")))
sketch1.addConstraint(Sketcher.Constraint("DistanceY", -1, 1, 35, 2, Q("29 mm")))
sketch1.addConstraint(Sketcher.Constraint("DistanceX", 54, 2, -1, 1, Q("4 mm")))
sketch1.addConstraint(Sketcher.Constraint("DistanceX", -1, 1, 6, 3, Q("16.5 mm")))
sketch1.addConstraint(Sketcher.Constraint("DistanceY", -1, 1, 30, 3, Q("21.5 mm")))
sketch1.addConstraint(Sketcher.Constraint("Distance", 3, Q("9.4175 mm")))
sketch1.addConstraint(Sketcher.Constraint("DistanceX", 35, 2, 35, 1, Q("38.571211 mm")))
sketch1.addConstraint(Sketcher.Constraint("DistanceX", 46, 2, 46, 1, Q("8.29037 mm")))
sketch1.addConstraint(Sketcher.Constraint("Distance", 1, Q("4.569649 mm")))
sketch1.addConstraint(Sketcher.Constraint("DistanceX", 38, 1, 38, 2, Q("10.371904 mm")))
sketch1.addConstraint(Sketcher.Constraint("DistanceY", 34, 2, 34, 1, Q("1.818813 mm")))
sketch1.addConstraint(Sketcher.Constraint("DistanceY", 59, 2, 59, 1, Q("3.874203 mm")))
sketch1.addConstraint(Sketcher.Constraint("DistanceX", -1, 1, 39, 1, Q("8.22463 mm")))
pad1 = body.newObject("PartDesign::Pad", "Pad")
pad1.Profile = sketch1
pad1.Length = 35
pad1.Reversed = True

# Sketch on XZ plane
sketch2 = body.newObject("Sketcher::SketchObject", "Sketch001")
sketch2.AttachmentSupport = (doc.getObject("XZ_Plane"), [""])
sketch2.MapMode = "FlatFace"
sketch2.AttachmentOffset = App.Placement(App.Vector(0, 0, -23.5), App.Rotation())
add_polygon(sketch2, [(3.963704, -22.785434), (3.963704, -30.717368), (10.604126, -22.785434)])  # lines 0-2
sketch2.addConstraint(Sketcher.Constraint("Vertical", 0))
sketch2.addConstraint(Sketcher.Constraint("Horizontal", 2))
sketch2.addConstraint(Sketcher.Constraint("Distance", 1, Q("10.344601 mm")))
sketch2.addConstraint(Sketcher.Constraint("DistanceX", 2, 2, 2, 1, Q("6.640422 mm")))
sketch2.addConstraint(Sketcher.Constraint("DistanceX", -1, 1, 0, 2, Q("3.963704 mm")))
sketch2.addConstraint(Sketcher.Constraint("DistanceY", 0, 2, -1, 1, Q("30.717368 mm")))
pad2 = body.newObject("PartDesign::Pad", "Pad001")
pad2.Profile = sketch2
pad2.Length = 12

# Sketch on YZ plane
sketch3 = body.newObject("Sketcher::SketchObject", "Sketch002")
sketch3.AttachmentSupport = (doc.getObject("YZ_Plane"), [""])
sketch3.MapMode = "FlatFace"
sketch3.AttachmentOffset = App.Placement(App.Vector(0, 0, 19.407172), App.Rotation())
sketch3.addGeometry(Part.ArcOfCircle(Part.Circle(App.Vector(17.5, -27, 0), App.Vector(0, 0, 1), 4), math.radians(0), math.radians(90)), False)
sketch3.addGeometry(Part.LineSegment(App.Vector(21.5, -27, 0), App.Vector(21.5, -32, 0)), False)
sketch3.addGeometry(Part.LineSegment(App.Vector(21.5, -32, 0), App.Vector(13.5, -32, 0)), False)
sketch3.addGeometry(Part.LineSegment(App.Vector(13.5, -32, 0), App.Vector(13.5, -27, 0)), False)
sketch3.addGeometry(Part.ArcOfCircle(Part.Circle(App.Vector(17.5, -27, 0), App.Vector(0, 0, 1), 4), math.radians(90), math.radians(180)), False)
sketch3.addConstraint(Sketcher.Constraint("Tangent", 0, 1, 1, 1))
sketch3.addConstraint(Sketcher.Constraint("Coincident", 1, 2, 2, 1))
sketch3.addConstraint(Sketcher.Constraint("Coincident", 2, 2, 3, 1))
sketch3.addConstraint(Sketcher.Constraint("Tangent", 3, 2, 4, 2))
sketch3.addConstraint(Sketcher.Constraint("Tangent", 4, 1, 0, 2))
sketch3.addConstraint(Sketcher.Constraint("Vertical", 1))
sketch3.addConstraint(Sketcher.Constraint("Horizontal", 2))
sketch3.addConstraint(Sketcher.Constraint("Vertical", 3))
sketch3.addConstraint(Sketcher.Constraint("Equal", 0, 4))
sketch3.addConstraint(Sketcher.Constraint("Vertical", 0, 3, 4, 1))
sketch3.addConstraint(Sketcher.Constraint("Radius", 0, Q("4 mm")))
sketch3.addConstraint(Sketcher.Constraint("DistanceY", 1, 2, 1, 1, Q("5 mm")))
sketch3.addConstraint(Sketcher.Constraint("DistanceY", 0, 3, -1, 1, Q("27 mm")))
sketch3.addConstraint(Sketcher.Constraint("DistanceX", -1, 1, 0, 3, Q("17.5 mm")))
pocket1 = body.newObject("PartDesign::Pocket", "Pocket")
pocket1.Profile = sketch3
pocket1.Length = 14.407172

# Sketch on XZ plane
sketch4 = body.newObject("Sketcher::SketchObject", "Sketch003")
sketch4.AttachmentSupport = (doc.getObject("XZ_Plane"), [""])
sketch4.MapMode = "FlatFace"
sketch4.addGeometry(Part.Circle(App.Vector(-43, 0, 0), App.Vector(0, 0, 1), 8.5), False)
sketch4.addConstraint(Sketcher.Constraint("PointOnObject", 0, 3, -1))
sketch4.addConstraint(Sketcher.Constraint("Diameter", 0, Q("17 mm")))
sketch4.addConstraint(Sketcher.Constraint("DistanceX", 0, 3, -1, 1, Q("43 mm")))
pad3 = body.newObject("PartDesign::Pad", "Pad002")
pad3.Profile = sketch4
pad3.Length = 15
pad3.Reversed = True

# Sketch on XZ plane
sketch5 = body.newObject("Sketcher::SketchObject", "Sketch004")
sketch5.AttachmentSupport = (doc.getObject("XZ_Plane"), [""])
sketch5.MapMode = "FlatFace"
sketch5.addGeometry(Part.Circle(App.Vector(-43, 0, 0), App.Vector(0, 0, 1), 5), False)
sketch5.addConstraint(Sketcher.Constraint("PointOnObject", 0, 3, -1))
sketch5.addConstraint(Sketcher.Constraint("Diameter", 0, Q("10 mm")))
sketch5.addConstraint(Sketcher.Constraint("DistanceX", 0, 3, -1, 1, Q("43 mm")))
pocket2 = body.newObject("PartDesign::Pocket", "Pocket001")
pocket2.Profile = sketch5
pocket2.Length = 15

# Sketch on XZ plane
sketch6 = body.newObject("Sketcher::SketchObject", "Sketch005")
sketch6.AttachmentSupport = (doc.getObject("XZ_Plane"), [""])
sketch6.MapMode = "FlatFace"
sketch6.addGeometry(Part.Circle(App.Vector(-43, 0, 0), App.Vector(0, 0, 1), 6.165), False)
sketch6.addConstraint(Sketcher.Constraint("PointOnObject", 0, 3, -1))
sketch6.addConstraint(Sketcher.Constraint("Diameter", 0, Q("12.33 mm")))
sketch6.addConstraint(Sketcher.Constraint("DistanceX", 0, 3, -1, 1, Q("43 mm")))
pocket3 = body.newObject("PartDesign::Pocket", "Pocket002")
pocket3.Profile = sketch6
pocket3.Length = 1.5

# Sketch on XZ plane
sketch7 = body.newObject("Sketcher::SketchObject", "Sketch006")
sketch7.AttachmentSupport = (doc.getObject("XZ_Plane"), [""])
sketch7.MapMode = "FlatFace"
sketch7.addGeometry(Part.Circle(App.Vector(-48.64603, -5.667658, 0), App.Vector(0, 0, 1), 1.425), False)
sketch7.addGeometry(Part.Circle(App.Vector(-48.656854, 5.656854, 0), App.Vector(0, 0, 1), 1.425), False)
sketch7.addGeometry(Part.Circle(App.Vector(-37.332342, 5.667678, 0), App.Vector(0, 0, 1), 1.425), False)
sketch7.addGeometry(Part.Circle(App.Vector(-37.321518, -5.656834, 0), App.Vector(0, 0, 1), 1.425), False)
sketch7.addConstraint(Sketcher.Constraint("Equal", 0, 1))
sketch7.addConstraint(Sketcher.Constraint("Equal", 1, 2))
sketch7.addConstraint(Sketcher.Constraint("Equal", 2, 3))
sketch7.addConstraint(Sketcher.Constraint("Diameter", 0, Q("2.85 mm")))
sketch7.addConstraint(Sketcher.Constraint("DistanceX", 0, 3, -1, 1, Q("48.64603 mm")))
sketch7.addConstraint(Sketcher.Constraint("DistanceY", -1, 1, 2, 3, Q("5.667678 mm")))
sketch7.addConstraint(Sketcher.Constraint("DistanceX", 3, 3, -1, 1, Q("37.321518 mm")))
sketch7.addConstraint(Sketcher.Constraint("DistanceY", 0, 3, -1, 1, Q("5.667658 mm")))
sketch7.addConstraint(Sketcher.Constraint("DistanceX", 1, 3, -1, 1, Q("48.656854 mm")))
sketch7.addConstraint(Sketcher.Constraint("DistanceY", -1, 1, 1, 3, Q("5.656854 mm")))
sketch7.addConstraint(Sketcher.Constraint("DistanceX", 2, 3, -1, 1, Q("37.332342 mm")))
sketch7.addConstraint(Sketcher.Constraint("DistanceY", 3, 3, -1, 1, Q("5.656834 mm")))
pocket4 = body.newObject("PartDesign::Pocket", "Pocket003")
pocket4.Profile = sketch7
pocket4.Length = 8

doc.recompute()
